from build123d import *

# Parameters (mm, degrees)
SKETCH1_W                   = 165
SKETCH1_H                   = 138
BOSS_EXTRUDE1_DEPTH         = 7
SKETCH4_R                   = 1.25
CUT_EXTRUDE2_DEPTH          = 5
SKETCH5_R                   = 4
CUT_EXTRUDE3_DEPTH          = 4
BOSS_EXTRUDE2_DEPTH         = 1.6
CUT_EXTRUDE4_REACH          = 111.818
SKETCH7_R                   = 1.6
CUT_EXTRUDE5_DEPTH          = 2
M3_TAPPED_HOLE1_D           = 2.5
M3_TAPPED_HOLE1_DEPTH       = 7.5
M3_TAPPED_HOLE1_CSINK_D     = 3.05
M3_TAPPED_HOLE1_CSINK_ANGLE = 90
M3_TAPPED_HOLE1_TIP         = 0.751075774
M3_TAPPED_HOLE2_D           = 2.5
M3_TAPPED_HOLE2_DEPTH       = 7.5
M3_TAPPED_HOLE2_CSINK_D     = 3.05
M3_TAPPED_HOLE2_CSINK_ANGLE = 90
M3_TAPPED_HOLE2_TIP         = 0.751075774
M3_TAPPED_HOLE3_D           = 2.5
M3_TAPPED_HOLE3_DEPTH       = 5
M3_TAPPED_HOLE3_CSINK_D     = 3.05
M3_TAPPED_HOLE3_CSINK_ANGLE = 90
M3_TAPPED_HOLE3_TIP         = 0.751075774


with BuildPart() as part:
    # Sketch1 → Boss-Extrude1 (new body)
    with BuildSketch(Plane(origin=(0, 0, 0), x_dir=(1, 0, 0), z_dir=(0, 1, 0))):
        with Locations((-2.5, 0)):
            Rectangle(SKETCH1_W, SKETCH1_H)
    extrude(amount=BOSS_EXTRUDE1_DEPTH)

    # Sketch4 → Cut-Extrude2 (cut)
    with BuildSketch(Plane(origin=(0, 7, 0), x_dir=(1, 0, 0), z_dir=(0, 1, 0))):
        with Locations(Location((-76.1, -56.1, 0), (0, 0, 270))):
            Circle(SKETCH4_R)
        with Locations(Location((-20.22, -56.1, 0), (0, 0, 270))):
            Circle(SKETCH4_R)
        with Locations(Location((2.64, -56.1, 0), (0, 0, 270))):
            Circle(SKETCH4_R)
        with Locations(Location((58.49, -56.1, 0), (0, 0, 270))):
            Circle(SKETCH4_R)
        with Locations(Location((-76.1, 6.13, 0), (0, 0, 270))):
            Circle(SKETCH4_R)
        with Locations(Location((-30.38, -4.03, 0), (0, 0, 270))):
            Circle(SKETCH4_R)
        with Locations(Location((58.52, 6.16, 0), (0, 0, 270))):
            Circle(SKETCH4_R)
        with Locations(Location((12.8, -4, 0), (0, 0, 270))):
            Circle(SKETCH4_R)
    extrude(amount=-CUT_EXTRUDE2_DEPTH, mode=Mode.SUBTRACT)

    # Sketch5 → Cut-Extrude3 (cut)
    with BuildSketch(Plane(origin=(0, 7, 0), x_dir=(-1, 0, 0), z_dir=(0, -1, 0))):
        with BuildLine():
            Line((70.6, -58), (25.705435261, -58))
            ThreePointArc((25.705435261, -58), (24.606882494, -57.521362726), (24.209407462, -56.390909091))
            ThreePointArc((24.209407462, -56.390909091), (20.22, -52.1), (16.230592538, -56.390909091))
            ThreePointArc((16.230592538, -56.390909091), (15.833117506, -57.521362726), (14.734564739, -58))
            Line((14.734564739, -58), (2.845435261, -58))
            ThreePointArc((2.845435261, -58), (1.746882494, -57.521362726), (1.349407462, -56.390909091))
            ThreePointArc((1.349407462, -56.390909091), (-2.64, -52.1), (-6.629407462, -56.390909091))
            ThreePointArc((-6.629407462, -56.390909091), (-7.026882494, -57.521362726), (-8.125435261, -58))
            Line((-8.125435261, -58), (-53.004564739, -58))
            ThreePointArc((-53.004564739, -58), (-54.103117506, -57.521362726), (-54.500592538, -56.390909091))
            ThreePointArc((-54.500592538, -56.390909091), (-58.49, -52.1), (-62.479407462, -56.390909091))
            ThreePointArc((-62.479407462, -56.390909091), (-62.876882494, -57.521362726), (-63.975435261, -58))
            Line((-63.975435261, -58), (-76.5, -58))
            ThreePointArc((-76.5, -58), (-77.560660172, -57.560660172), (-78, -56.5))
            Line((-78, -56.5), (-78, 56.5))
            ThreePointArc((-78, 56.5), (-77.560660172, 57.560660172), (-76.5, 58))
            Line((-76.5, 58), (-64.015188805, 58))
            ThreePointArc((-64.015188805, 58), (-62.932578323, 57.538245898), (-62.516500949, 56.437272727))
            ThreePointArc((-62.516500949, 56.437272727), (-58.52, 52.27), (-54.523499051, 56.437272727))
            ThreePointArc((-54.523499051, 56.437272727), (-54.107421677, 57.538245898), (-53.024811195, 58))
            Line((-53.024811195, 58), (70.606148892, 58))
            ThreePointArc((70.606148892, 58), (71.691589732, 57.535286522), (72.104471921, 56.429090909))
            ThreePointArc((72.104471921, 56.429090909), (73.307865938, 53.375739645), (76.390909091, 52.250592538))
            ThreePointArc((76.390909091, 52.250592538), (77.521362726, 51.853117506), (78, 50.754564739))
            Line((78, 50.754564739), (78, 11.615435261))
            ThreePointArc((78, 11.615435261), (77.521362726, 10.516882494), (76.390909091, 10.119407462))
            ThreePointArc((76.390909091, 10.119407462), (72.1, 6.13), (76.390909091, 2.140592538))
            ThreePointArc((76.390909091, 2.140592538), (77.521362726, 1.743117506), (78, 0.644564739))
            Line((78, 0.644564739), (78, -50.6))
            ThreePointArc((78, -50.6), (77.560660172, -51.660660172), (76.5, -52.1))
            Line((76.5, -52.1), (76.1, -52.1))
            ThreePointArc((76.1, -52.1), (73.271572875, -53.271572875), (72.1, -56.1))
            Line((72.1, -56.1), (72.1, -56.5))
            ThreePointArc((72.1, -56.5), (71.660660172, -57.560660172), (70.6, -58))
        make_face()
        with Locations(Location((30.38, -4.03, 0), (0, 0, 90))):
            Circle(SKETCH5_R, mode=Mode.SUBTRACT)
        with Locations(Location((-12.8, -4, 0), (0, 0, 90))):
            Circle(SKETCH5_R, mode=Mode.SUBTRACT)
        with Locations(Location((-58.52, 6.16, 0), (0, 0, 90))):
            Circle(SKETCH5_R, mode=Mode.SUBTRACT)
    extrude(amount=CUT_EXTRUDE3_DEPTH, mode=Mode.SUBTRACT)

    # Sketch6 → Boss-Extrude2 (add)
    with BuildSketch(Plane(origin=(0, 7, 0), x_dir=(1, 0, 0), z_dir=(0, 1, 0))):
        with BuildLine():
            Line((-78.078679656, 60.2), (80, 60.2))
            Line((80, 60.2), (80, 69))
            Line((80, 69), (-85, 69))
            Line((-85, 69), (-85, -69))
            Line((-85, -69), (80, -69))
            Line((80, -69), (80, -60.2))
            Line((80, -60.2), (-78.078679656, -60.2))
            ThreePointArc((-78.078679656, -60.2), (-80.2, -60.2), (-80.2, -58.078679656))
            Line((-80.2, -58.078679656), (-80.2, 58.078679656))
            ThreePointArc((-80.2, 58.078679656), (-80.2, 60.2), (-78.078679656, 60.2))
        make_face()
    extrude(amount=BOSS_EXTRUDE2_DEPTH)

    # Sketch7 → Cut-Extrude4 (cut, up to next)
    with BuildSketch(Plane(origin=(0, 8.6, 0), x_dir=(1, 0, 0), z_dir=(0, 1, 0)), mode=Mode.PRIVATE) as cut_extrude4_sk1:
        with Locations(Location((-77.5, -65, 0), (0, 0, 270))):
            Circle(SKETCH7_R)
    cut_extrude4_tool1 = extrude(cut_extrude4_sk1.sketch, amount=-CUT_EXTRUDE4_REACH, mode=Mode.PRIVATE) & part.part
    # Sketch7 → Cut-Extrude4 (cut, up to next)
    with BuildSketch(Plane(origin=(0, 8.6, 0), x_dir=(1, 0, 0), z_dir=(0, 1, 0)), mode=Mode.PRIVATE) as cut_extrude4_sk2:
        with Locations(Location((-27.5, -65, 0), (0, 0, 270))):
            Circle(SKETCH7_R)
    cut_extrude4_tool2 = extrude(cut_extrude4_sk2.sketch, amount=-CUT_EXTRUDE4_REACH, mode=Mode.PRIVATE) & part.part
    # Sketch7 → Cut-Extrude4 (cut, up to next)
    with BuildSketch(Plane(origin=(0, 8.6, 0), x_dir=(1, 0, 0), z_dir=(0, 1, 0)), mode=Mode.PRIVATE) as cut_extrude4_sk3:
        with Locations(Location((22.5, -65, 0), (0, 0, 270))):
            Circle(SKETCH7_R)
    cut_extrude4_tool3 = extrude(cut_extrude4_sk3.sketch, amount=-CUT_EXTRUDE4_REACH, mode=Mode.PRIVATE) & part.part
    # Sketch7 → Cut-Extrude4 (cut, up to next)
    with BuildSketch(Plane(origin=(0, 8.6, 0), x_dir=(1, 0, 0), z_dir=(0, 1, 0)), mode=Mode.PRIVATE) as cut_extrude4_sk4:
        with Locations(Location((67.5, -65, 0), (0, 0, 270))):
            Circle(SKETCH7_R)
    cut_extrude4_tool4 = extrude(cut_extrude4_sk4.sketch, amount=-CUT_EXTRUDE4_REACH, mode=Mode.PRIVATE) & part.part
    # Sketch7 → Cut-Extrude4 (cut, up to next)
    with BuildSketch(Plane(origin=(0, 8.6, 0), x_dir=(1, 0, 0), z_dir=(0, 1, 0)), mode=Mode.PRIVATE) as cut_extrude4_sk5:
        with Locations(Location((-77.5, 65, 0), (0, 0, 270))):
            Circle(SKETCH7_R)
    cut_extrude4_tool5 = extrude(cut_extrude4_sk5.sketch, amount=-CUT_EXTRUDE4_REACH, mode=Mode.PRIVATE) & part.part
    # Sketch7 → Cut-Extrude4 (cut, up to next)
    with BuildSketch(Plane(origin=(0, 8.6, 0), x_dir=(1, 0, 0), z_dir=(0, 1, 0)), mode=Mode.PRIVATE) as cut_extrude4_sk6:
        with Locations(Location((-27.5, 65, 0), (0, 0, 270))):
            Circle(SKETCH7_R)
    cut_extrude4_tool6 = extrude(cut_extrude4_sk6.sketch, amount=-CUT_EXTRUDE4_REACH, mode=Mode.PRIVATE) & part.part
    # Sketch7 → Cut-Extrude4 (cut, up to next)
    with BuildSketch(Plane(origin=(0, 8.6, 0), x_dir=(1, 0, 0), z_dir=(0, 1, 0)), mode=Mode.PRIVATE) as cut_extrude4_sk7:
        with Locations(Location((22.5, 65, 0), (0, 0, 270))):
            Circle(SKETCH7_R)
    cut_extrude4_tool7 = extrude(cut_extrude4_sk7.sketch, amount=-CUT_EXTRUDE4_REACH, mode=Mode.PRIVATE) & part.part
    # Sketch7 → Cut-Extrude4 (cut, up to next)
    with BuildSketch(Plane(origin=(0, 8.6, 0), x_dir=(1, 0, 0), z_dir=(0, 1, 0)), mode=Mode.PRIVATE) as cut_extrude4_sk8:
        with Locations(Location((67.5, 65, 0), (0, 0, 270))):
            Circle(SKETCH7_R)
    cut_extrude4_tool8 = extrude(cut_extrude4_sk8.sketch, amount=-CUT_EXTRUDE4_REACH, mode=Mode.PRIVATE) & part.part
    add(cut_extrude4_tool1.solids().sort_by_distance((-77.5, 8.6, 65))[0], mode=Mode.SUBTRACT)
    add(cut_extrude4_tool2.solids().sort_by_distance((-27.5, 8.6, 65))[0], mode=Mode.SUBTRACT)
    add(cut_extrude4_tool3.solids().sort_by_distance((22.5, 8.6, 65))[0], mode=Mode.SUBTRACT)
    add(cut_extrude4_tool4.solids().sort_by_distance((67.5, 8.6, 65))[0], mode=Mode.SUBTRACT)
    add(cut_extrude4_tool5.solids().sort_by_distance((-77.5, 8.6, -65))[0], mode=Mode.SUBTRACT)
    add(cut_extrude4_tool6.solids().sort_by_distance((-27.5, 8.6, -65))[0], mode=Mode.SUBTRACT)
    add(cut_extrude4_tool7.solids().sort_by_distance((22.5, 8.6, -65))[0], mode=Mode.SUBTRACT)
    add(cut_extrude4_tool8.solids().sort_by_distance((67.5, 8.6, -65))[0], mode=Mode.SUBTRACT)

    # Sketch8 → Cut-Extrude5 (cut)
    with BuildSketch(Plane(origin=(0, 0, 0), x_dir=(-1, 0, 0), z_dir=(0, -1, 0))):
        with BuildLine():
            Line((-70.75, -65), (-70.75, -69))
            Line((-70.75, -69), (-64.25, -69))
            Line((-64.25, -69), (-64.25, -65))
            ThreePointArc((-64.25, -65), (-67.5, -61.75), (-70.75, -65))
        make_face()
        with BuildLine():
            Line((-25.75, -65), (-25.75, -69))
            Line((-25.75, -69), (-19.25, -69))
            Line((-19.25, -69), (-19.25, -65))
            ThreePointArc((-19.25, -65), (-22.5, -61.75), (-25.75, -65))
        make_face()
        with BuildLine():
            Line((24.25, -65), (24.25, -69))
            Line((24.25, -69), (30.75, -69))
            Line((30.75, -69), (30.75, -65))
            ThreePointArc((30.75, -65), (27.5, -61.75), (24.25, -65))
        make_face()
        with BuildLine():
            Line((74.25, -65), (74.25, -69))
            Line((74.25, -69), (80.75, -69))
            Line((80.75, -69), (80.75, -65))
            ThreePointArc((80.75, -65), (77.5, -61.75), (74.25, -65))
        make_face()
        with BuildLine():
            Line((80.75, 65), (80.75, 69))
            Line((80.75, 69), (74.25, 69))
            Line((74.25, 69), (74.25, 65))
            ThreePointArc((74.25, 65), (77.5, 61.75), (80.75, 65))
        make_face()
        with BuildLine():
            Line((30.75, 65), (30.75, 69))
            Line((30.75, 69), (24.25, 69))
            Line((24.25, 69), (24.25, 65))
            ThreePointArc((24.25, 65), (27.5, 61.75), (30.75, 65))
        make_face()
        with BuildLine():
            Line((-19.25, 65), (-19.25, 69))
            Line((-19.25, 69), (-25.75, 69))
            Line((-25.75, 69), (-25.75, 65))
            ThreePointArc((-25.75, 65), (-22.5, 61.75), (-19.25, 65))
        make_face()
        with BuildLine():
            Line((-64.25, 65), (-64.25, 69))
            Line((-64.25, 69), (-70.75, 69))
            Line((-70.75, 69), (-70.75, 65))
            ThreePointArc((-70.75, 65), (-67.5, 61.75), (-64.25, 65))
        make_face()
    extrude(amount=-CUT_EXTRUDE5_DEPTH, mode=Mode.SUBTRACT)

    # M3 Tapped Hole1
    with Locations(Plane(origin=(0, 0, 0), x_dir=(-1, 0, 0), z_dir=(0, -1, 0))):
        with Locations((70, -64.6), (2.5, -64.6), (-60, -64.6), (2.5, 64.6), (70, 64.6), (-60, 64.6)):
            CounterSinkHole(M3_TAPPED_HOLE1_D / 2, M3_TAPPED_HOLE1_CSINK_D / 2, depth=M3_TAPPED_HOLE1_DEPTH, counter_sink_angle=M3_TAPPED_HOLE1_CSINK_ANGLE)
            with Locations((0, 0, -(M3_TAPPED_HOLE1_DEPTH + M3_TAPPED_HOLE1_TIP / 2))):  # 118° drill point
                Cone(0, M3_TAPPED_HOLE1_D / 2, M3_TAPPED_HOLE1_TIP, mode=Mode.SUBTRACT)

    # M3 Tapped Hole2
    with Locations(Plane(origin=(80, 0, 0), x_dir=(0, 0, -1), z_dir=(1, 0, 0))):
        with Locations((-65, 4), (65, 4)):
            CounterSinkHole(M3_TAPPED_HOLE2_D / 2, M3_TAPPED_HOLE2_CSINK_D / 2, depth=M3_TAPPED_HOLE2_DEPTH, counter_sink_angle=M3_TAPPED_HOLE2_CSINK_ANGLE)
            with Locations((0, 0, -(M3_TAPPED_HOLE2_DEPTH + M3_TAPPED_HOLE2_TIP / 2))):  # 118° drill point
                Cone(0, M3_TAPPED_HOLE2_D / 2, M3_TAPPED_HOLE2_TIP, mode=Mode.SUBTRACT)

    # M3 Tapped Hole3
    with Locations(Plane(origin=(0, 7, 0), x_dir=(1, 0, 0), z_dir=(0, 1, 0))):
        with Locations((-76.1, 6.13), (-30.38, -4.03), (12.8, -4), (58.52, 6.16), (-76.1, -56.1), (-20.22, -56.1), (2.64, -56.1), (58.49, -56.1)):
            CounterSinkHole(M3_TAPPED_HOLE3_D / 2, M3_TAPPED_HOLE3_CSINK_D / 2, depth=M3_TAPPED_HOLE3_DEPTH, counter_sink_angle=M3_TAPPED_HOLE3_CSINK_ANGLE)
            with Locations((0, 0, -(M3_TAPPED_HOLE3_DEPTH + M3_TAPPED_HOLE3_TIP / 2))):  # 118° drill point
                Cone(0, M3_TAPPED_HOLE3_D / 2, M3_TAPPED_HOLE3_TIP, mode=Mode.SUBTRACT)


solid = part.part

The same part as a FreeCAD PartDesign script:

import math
import FreeCAD as App
import Part
import Sketcher

V = App.Vector
Q = App.Units.Quantity


def add_polygon(sketch, points):
    """Adds a closed chain of lines whose ends are joined by coincident constraints."""
    first, n = sketch.GeometryCount, len(points)
    for a, b in zip(points, points[1:] + points[:1]):
        sketch.addGeometry(Part.LineSegment(App.Vector(*a, 0), App.Vector(*b, 0)), False)
    for i in range(n):
        sketch.addConstraint(Sketcher.Constraint("Coincident", first + i, 2, first + (i + 1) % n, 1))

doc = App.newDocument("Part")
body = doc.addObject("PartDesign::Body", "Body")

# Sketch on XZ plane
sketch1 = body.newObject("Sketcher::SketchObject", "Sketch")
sketch1.AttachmentSupport = (doc.getObject("XZ_Plane"), [""])
sketch1.MapMode = "FlatFace"
add_polygon(sketch1, [(-85, -69), (-85, 69), (80, 69), (80, -69)])  # lines 0-3
sketch1.addConstraint(Sketcher.Constraint("Vertical", 0))
sketch1.addConstraint(Sketcher.Constraint("Horizontal", 1))
sketch1.addConstraint(Sketcher.Constraint("Vertical", 2))
sketch1.addConstraint(Sketcher.Constraint("Horizontal", 3))
sketch1.addConstraint(Sketcher.Constraint("DistanceX", 1, 1, 1, 2, Q("165 mm")))
sketch1.addConstraint(Sketcher.Constraint("DistanceY", 0, 1, 0, 2, Q("138 mm")))
sketch1.addConstraint(Sketcher.Constraint("DistanceX", 0, 2, -1, 1, Q("85 mm")))
sketch1.addConstraint(Sketcher.Constraint("DistanceY", -1, 1, 0, 2, Q("69 mm")))
pad1 = body.newObject("PartDesign::Pad", "Pad")
pad1.Profile = sketch1
pad1.Length = 7
pad1.Reversed = True

# Sketch on XZ plane
sketch2 = body.newObject("Sketcher::SketchObject", "Sketch001")
sketch2.AttachmentSupport = (doc.getObject("XZ_Plane"), [""])
sketch2.MapMode = "FlatFace"
sketch2.AttachmentOffset = App.Placement(V(0, 0, -7), App.Rotation())
sketch2.addGeometry(Part.Circle(V(-76.1, 56.1, 0), V(0, 0, 1), 1.2), False)
sketch2.addGeometry(Part.Circle(V(-20.2, 56.1, 0), V(0, 0, 1), 1.2), False)
sketch2.addGeometry(Part.Circle(V(2.6, 56.1, 0), V(0, 0, 1), 1.2), False)
sketch2.addGeometry(Part.Circle(V(58.5, 56.1, 0), V(0, 0, 1), 1.2), False)
sketch2.addGeometry(Part.Circle(V(-76.1, -6.1, 0), V(0, 0, 1), 1.2), False)
sketch2.addGeometry(Part.Circle(V(-30.4, 4, 0), V(0, 0, 1), 1.2), False)
sketch2.addGeometry(Part.Circle(V(58.5, -6.2, 0), V(0, 0, 1), 1.2), False)
sketch2.addGeometry(Part.Circle(V(12.8, 4, 0), V(0, 0, 1), 1.2), False)
sketch2.addConstraint(Sketcher.Constraint("Equal", 0, 1))
sketch2.addConstraint(Sketcher.Constraint("Equal", 1, 2))
sketch2.addConstraint(Sketcher.Constraint("Equal", 2, 3))
sketch2.addConstraint(Sketcher.Constraint("Equal", 3, 4))
sketch2.addConstraint(Sketcher.Constraint("Equal", 4, 5))
sketch2.addConstraint(Sketcher.Constraint("Equal", 5, 6))
sketch2.addConstraint(Sketcher.Constraint("Equal", 6, 7))
sketch2.addConstraint(Sketcher.Constraint("Horizontal", 0, 3, 1, 3))
sketch2.addConstraint(Sketcher.Constraint("Horizontal", 1, 3, 2, 3))
sketch2.addConstraint(Sketcher.Constraint("Horizontal", 2, 3, 3, 3))
sketch2.addConstraint(Sketcher.Constraint("Vertical", 0, 3, 4, 3))
sketch2.addConstraint(Sketcher.Constraint("Diameter", 0, Q("2.5 mm")))
sketch2.addConstraint(Sketcher.Constraint("DistanceY", -1, 1, 7, 3, Q("4 mm")))
sketch2.addConstraint(Sketcher.Constraint("DistanceX", 0, 3, -1, 1, Q("76.1 mm")))
sketch2.addConstraint(Sketcher.Constraint("DistanceY", -1, 1, 0, 3, Q("56.1 mm")))
sketch2.addConstraint(Sketcher.Constraint("DistanceX", -1, 1, 7, 3, Q("12.8 mm")))
sketch2.addConstraint(Sketcher.Constraint("DistanceX", 5, 3, 6, 3, Q("88.9 mm")))
sketch2.addConstraint(Sketcher.Constraint("DistanceX", 1, 3, -1, 1, Q("20.22 mm")))
sketch2.addConstraint(Sketcher.Constraint("DistanceX", -1, 1, 2, 3, Q("2.64 mm")))
sketch2.addConstraint(Sketcher.Constraint("DistanceX", -1, 1, 3, 3, Q("58.49 mm")))
sketch2.addConstraint(Sketcher.Constraint("DistanceY", 4, 3, -1, 1, Q("6.13 mm")))
sketch2.addConstraint(Sketcher.Constraint("DistanceX", 5, 3, -1, 1, Q("30.38 mm")))
sketch2.addConstraint(Sketcher.Constraint("DistanceY", -1, 1, 5, 3, Q("4.03 mm")))
sketch2.addConstraint(Sketcher.Constraint("DistanceY", 6, 3, -1, 1, Q("6.16 mm")))
pocket1 = body.newObject("PartDesign::Pocket", "Pocket")
pocket1.Profile = sketch2
pocket1.Length = 5
pocket1.Reversed = True

# Sketch on XZ plane
sketch3 = body.newObject("Sketcher::SketchObject", "Sketch002")
sketch3.AttachmentSupport = (doc.getObject("XZ_Plane"), [""])
sketch3.MapMode = "FlatFace"
sketch3.AttachmentOffset = App.Placement(V(0, 0, -7), App.Rotation())
sketch3.addGeometry(Part.LineSegment(V(-25.71, 58, 0), V(-70.6, 58, 0)), False)
sketch3.addGeometry(Part.ArcOfCircle(Part.Circle(V(-70.6, 56.5, 0), V(0, 0, 1), 1.5), math.radians(90), math.radians(180)), False)
sketch3.addGeometry(Part.LineSegment(V(-72.1, 56.5, 0), V(-72.1, 56.1, 0)), False)
sketch3.addGeometry(Part.ArcOfCircle(Part.Circle(V(-76.1, 56.1, 0), V(0, 0, 1), 4), math.radians(-90), math.radians(0)), False)
sketch3.addGeometry(Part.LineSegment(V(-76.1, 52.1, 0), V(-76.5, 52.1, 0)), False)
sketch3.addGeometry(Part.ArcOfCircle(Part.Circle(V(-76.5, 50.6, 0), V(0, 0, 1), 1.5), math.radians(90), math.radians(180)), False)
sketch3.addGeometry(Part.LineSegment(V(-78, 50.6, 0), V(-78, -0.64, 0)), False)
sketch3.addGeometry(Part.ArcOfCircle(Part.Circle(V(-76.5, -0.64, 0), V(0, 0, 1), 1.5), math.radians(180), math.radians(274)), False)
sketch3.addGeometry(Part.ArcOfCircle(Part.Circle(V(-76.1, -6.13, 0), V(0, 0, 1), 4), math.radians(-94), math.radians(94)), False)
sketch3.addGeometry(Part.ArcOfCircle(Part.Circle(V(-76.5, -11.62, 0), V(0, 0, 1), 1.5), math.radians(86), math.radians(180)), False)
sketch3.addGeometry(Part.LineSegment(V(-78, -11.62, 0), V(-78, -50.75, 0)), False)
sketch3.addGeometry(Part.ArcOfCircle(Part.Circle(V(-76.5, -50.75, 0), V(0, 0, 1), 1.5), math.radians(180), math.radians(274)), False)
sketch3.addGeometry(Part.ArcOfCircle(Part.Circle(V(-76.1, -56.24, 0), V(0, 0, 1), 4), math.radians(-3), math.radians(94)), False)
sketch3.addGeometry(Part.ArcOfCircle(Part.Circle(V(-70.61, -56.5, 0), V(0, 0, 1), 1.5), math.radians(177), math.radians(270)), False)
sketch3.addGeometry(Part.LineSegment(V(-70.61, -58, 0), V(53.02, -58, 0)), False)
sketch3.addGeometry(Part.ArcOfCircle(Part.Circle(V(53.02, -56.5, 0), V(0, 0, 1), 1.5), math.radians(-90), math.radians(2)), False)
sketch3.addGeometry(Part.ArcOfCircle(Part.Circle(V(58.52, -56.27, 0), V(0, 0, 1), 4), math.radians(-2), math.radians(182)), False)
sketch3.addGeometry(Part.ArcOfCircle(Part.Circle(V(64.02, -56.5, 0), V(0, 0, 1), 1.5), math.radians(178), math.radians(270)), False)
sketch3.addGeometry(Part.LineSegment(V(64.02, -58, 0), V(76.5, -58, 0)), False)
sketch3.addGeometry(Part.ArcOfCircle(Part.Circle(V(76.5, -56.5, 0), V(0, 0, 1), 1.5), math.radians(-90), math.radians(0)), False)
sketch3.addGeometry(Part.LineSegment(V(78, -56.5, 0), V(78, 56.5, 0)), False)
sketch3.addGeometry(Part.ArcOfCircle(Part.Circle(V(76.5, 56.5, 0), V(0, 0, 1), 1.5), math.radians(0), math.radians(90)), False)
sketch3.addGeometry(Part.LineSegment(V(76.5, 58, 0), V(63.98, 58, 0)), False)
sketch3.addGeometry(Part.ArcOfCircle(Part.Circle(V(63.98, 56.5, 0), V(0, 0, 1), 1.5), math.radians(90), math.radians(184)), False)
sketch3.addGeometry(Part.ArcOfCircle(Part.Circle(V(58.49, 56.1, 0), V(0, 0, 1), 4), math.radians(176), math.radians(364)), False)
sketch3.addGeometry(Part.ArcOfCircle(Part.Circle(V(53, 56.5, 0), V(0, 0, 1), 1.5), math.radians(-4), math.radians(90)), False)
sketch3.addGeometry(Part.LineSegment(V(53, 58, 0), V(8.13, 58, 0)), False)
sketch3.addGeometry(Part.ArcOfCircle(Part.Circle(V(8.13, 56.5, 0), V(0, 0, 1), 1.5), math.radians(90), math.radians(184)), False)
sketch3.addGeometry(Part.ArcOfCircle(Part.Circle(V(2.64, 56.1, 0), V(0, 0, 1), 4), math.radians(176), math.radians(364)), False)
sketch3.addGeometry(Part.ArcOfCircle(Part.Circle(V(-2.85, 56.5, 0), V(0, 0, 1), 1.5), math.radians(-4), math.radians(90)), False)
sketch3.addGeometry(Part.LineSegment(V(-2.85, 58, 0), V(-14.73, 58, 0)), False)
sketch3.addGeometry(Part.ArcOfCircle(Part.Circle(V(-14.73, 56.5, 0), V(0, 0, 1), 1.5), math.radians(90), math.radians(184)), False)
sketch3.addGeometry(Part.ArcOfCircle(Part.Circle(V(-20.22, 56.1, 0), V(0, 0, 1), 4), math.radians(176), math.radians(364)), False)
sketch3.addGeometry(Part.ArcOfCircle(Part.Circle(V(-25.71, 56.5, 0), V(0, 0, 1), 1.5), math.radians(-4), math.radians(90)), False)
sketch3.addGeometry(Part.Circle(V(-30.38, 4.03, 0), V(0, 0, 1), 4), False)
sketch3.addGeometry(Part.Circle(V(12.8, 4, 0), V(0, 0, 1), 4), False)
sketch3.addGeometry(Part.Circle(V(58.52, -6.16, 0), V(0, 0, 1), 4), False)
sketch3.addConstraint(Sketcher.Constraint("Tangent", 0, 2, 1, 1))
sketch3.addConstraint(Sketcher.Constraint("Tangent", 1, 2, 2, 1))
sketch3.addConstraint(Sketcher.Constraint("Tangent", 2, 2, 3, 2))
sketch3.addConstraint(Sketcher.Constraint("Tangent", 3, 1, 4, 1))
sketch3.addConstraint(Sketcher.Constraint("Tangent", 4, 2, 5, 1))
sketch3.addConstraint(Sketcher.Constraint("Tangent", 5, 2, 6, 1))
sketch3.addConstraint(Sketcher.Constraint("Tangent", 6, 2, 7, 1))
sketch3.addConstraint(Sketcher.Constraint("Tangent", 7, 2, 8, 2))
sketch3.addConstraint(Sketcher.Constraint("Tangent", 8, 1, 9, 1))
sketch3.addConstraint(Sketcher.Constraint("Tangent", 9, 2, 10, 1))
sketch3.addConstraint(Sketcher.Constraint("Tangent", 10, 2, 11, 1))
sketch3.addConstraint(Sketcher.Constraint("Tangent", 11, 2, 12, 2))
sketch3.addConstraint(Sketcher.Constraint("Tangent", 12, 1, 13, 1))
sketch3.addConstraint(Sketcher.Constraint("Tangent", 13, 2, 14, 1))
sketch3.addConstraint(Sketcher.Constraint("Tangent", 14, 2, 15, 1))
sketch3.addConstraint(Sketcher.Constraint("Tangent", 15, 2, 16, 2))
sketch3.addConstraint(Sketcher.Constraint("Tangent", 16, 1, 17, 1))
sketch3.addConstraint(Sketcher.Constraint("Tangent", 17, 2, 18, 1))
sketch3.addConstraint(Sketcher.Constraint("Tangent", 18, 2, 19, 1))
sketch3.addConstraint(Sketcher.Constraint("Tangent", 19, 2, 20, 1))
sketch3.addConstraint(Sketcher.Constraint("Tangent", 20, 2, 21, 1))
sketch3.addConstraint(Sketcher.Constraint("Tangent", 21, 2, 22, 1))
sketch3.addConstraint(Sketcher.Constraint("Tangent", 22, 2, 23, 1))
sketch3.addConstraint(Sketcher.Constraint("Tangent", 23, 2, 24, 2))
sketch3.addConstraint(Sketcher.Constraint("Tangent", 24, 1, 25, 1))
sketch3.addConstraint(Sketcher.Constraint("Tangent", 25, 2, 26, 1))
sketch3.addConstraint(Sketcher.Constraint("Tangent", 26, 2, 27, 1))
sketch3.addConstraint(Sketcher.Constraint("Tangent", 27, 2, 28, 2))
sketch3.addConstraint(Sketcher.Constraint("Tangent", 28, 1, 29, 1))
sketch3.addConstraint(Sketcher.Constraint("Tangent", 29, 2, 30, 1))
sketch3.addConstraint(Sketcher.Constraint("Tangent", 30, 2, 31, 1))
sketch3.addConstraint(Sketcher.Constraint("Tangent", 31, 2, 32, 2))
sketch3.addConstraint(Sketcher.Constraint("Tangent", 32, 1, 33, 1))
sketch3.addConstraint(Sketcher.Constraint("Tangent", 33, 2, 0, 1))
sketch3.addConstraint(Sketcher.Constraint("Horizontal", 0))
sketch3.addConstraint(Sketcher.Constraint("Vertical", 2))
sketch3.addConstraint(Sketcher.Constraint("Horizontal", 4))
sketch3.addConstraint(Sketcher.Constraint("Vertical", 6))
sketch3.addConstraint(Sketcher.Constraint("Vertical", 10))
sketch3.addConstraint(Sketcher.Constraint("Horizontal", 14))
sketch3.addConstraint(Sketcher.Constraint("Horizontal", 18))
sketch3.addConstraint(Sketcher.Constraint("Vertical", 20))
sketch3.addConstraint(Sketcher.Constraint("Horizontal", 22))
sketch3.addConstraint(Sketcher.Constraint("Horizontal", 26))
sketch3.addConstraint(Sketcher.Constraint("Horizontal", 30))
sketch3.addConstraint(Sketcher.Constraint("Equal", 1, 5))
sketch3.addConstraint(Sketcher.Constraint("Equal", 5, 7))
sketch3.addConstraint(Sketcher.Constraint("Equal", 3, 8))
sketch3.addConstraint(Sketcher.Constraint("Equal", 7, 9))
sketch3.addConstraint(Sketcher.Constraint("Equal", 9, 11))
sketch3.addConstraint(Sketcher.Constraint("Equal", 8, 12))
sketch3.addConstraint(Sketcher.Constraint("Equal", 11, 13))
sketch3.addConstraint(Sketcher.Constraint("Equal", 13, 15))
sketch3.addConstraint(Sketcher.Constraint("Equal", 12, 16))
sketch3.addConstraint(Sketcher.Constraint("Equal", 15, 17))
sketch3.addConstraint(Sketcher.Constraint("Equal", 17, 19))
sketch3.addConstraint(Sketcher.Constraint("Equal", 19, 21))
sketch3.addConstraint(Sketcher.Constraint("Equal", 21, 23))
sketch3.addConstraint(Sketcher.Constraint("Equal", 16, 24))
sketch3.addConstraint(Sketcher.Constraint("Equal", 23, 25))
sketch3.addConstraint(Sketcher.Constraint("Equal", 25, 27))
sketch3.addConstraint(Sketcher.Constraint("Equal", 24, 28))
sketch3.addConstraint(Sketcher.Constraint("Equal", 27, 29))
sketch3.addConstraint(Sketcher.Constraint("Equal", 29, 31))
sketch3.addConstraint(Sketcher.Constraint("Equal", 28, 32))
sketch3.addConstraint(Sketcher.Constraint("Equal", 31, 33))
sketch3.addConstraint(Sketcher.Constraint("Equal", 32, 34))
sketch3.addConstraint(Sketcher.Constraint("Equal", 34, 35))
sketch3.addConstraint(Sketcher.Constraint("Equal", 35, 36))
sketch3.addConstraint(Sketcher.Constraint("Horizontal", 15, 3, 17, 3))
sketch3.addConstraint(Sketcher.Constraint("Horizontal", 1, 3, 21, 3))
sketch3.addConstraint(Sketcher.Constraint("Horizontal", 3, 3, 24, 3))
sketch3.addConstraint(Sketcher.Constraint("Horizontal", 23, 3, 25, 3))
sketch3.addConstraint(Sketcher.Constraint("Horizontal", 24, 3, 28, 3))
sketch3.addConstraint(Sketcher.Constraint("Horizontal", 27, 3, 29, 3))
sketch3.addConstraint(Sketcher.Constraint("Horizontal", 28, 3, 32, 3))
sketch3.addConstraint(Sketcher.Constraint("Vertical", 3, 3, 8, 3))
sketch3.addConstraint(Sketcher.Constraint("Vertical", 7, 3, 9, 3))
sketch3.addConstraint(Sketcher.Constraint("Vertical", 8, 3, 12, 3))
sketch3.addConstraint(Sketcher.Constraint("Vertical", 16, 3, 36, 3))
sketch3.addConstraint(Sketcher.Constraint("Equal", 4, 2))
sketch3.addConstraint(Sketcher.Constraint("Diameter", 34, Q("8 mm")))
sketch3.addConstraint(Sketcher.Constraint("Radius", 1, Q("1.5 mm")))
sketch3.addConstraint(Sketcher.Constraint("DistanceY", 20, 1, 20, 2, Q("113 mm")))
sketch3.addConstraint(Sketcher.Constraint("DistanceX", 4, 2, 4, 1, Q("0.4 mm")))
sketch3.addConstraint(Sketcher.Constraint("DistanceY", -1, 1, 35, 3, Q("4 mm")))
sketch3.addConstraint(Sketcher.Constraint("DistanceY", -1, 1, 0, 2, Q("58 mm")))
sketch3.addConstraint(Sketcher.Constraint("DistanceX", 5, 2, -1, 1, Q("78 mm")))
sketch3.addConstraint(Sketcher.Constraint("DistanceX", -1, 1, 19, 2, Q("78 mm")))
sketch3.addConstraint(Sketcher.Constraint("DistanceX", -1, 1, 35, 3, Q("12.8 mm")))
sketch3.addConstraint(Sketcher.Constraint("DistanceY", 8, 3, -1, 1, Q("6.13 mm")))
sketch3.addConstraint(Sketcher.Constraint("DistanceY", 12, 3, -1, 1, Q("56.24 mm")))
sketch3.addConstraint(Sketcher.Constraint("DistanceX", -1, 1, 16, 3, Q("58.52 mm")))
sketch3.addConstraint(Sketcher.Constraint("DistanceY", 16, 3, -1, 1, Q("56.27 mm")))
sketch3.addConstraint(Sketcher.Constraint("DistanceX", -1, 1, 24, 3, Q("58.49 mm")))
sketch3.addConstraint(Sketcher.Constraint("DistanceX", -1, 1, 28, 3, Q("2.64 mm")))
sketch3.addConstraint(Sketcher.Constraint("DistanceX", 32, 3, -1, 1, Q("20.22 mm")))
sketch3.addConstraint(Sketcher.Constraint("DistanceX", 34, 3, -1, 1, Q("30.38 mm")))
sketch3.addConstraint(Sketcher.Constraint("DistanceY", -1, 1, 34, 3, Q("4.03 mm")))
sketch3.addConstraint(Sketcher.Constraint("DistanceY", 36, 3, -1, 1, Q("6.16 mm")))
pocket2 = body.newObject("PartDesign::Pocket", "Pocket001")
pocket2.Profile = sketch3
pocket2.Length = 4
pocket2.Reversed = True

# Sketch on XZ plane
sketch4 = body.newObject("Sketcher::SketchObject", "Sketch003")
sketch4.AttachmentSupport = (doc.getObject("XZ_Plane"), [""])
sketch4.MapMode = "FlatFace"
sketch4.AttachmentOffset = App.Placement(V(0, 0, -7), App.Rotation())
sketch4.addGeometry(Part.LineSegment(V(-78.1, -60.2, 0), V(80, -60.2, 0)), False)
sketch4.addGeometry(Part.LineSegment(V(80, -60.2, 0), V(80, -69, 0)), False)
sketch4.addGeometry(Part.LineSegment(V(80, -69, 0), V(-85, -69, 0)), False)
sketch4.addGeometry(Part.LineSegment(V(-85, -69, 0), V(-85, 69, 0)), False)
sketch4.addGeometry(Part.LineSegment(V(-85, 69, 0), V(80, 69, 0)), False)
sketch4.addGeometry(Part.LineSegment(V(80, 69, 0), V(80, 60.2, 0)), False)
sketch4.addGeometry(Part.LineSegment(V(80, 60.2, 0), V(-78.1, 60.2, 0)), False)
sketch4.addGeometry(Part.ArcOfCircle(Part.Circle(V(-79.1, 59.1, 0), V(0, 0, 1), 1.5), math.radians(45), math.radians(225)), False)
sketch4.addGeometry(Part.LineSegment(V(-80.2, 58.1, 0), V(-80.2, -58.1, 0)), False)
sketch4.addGeometry(Part.ArcOfCircle(Part.Circle(V(-79.1, -59.1, 0), V(0, 0, 1), 1.5), math.radians(135), math.radians(315)), False)
sketch4.addConstraint(Sketcher.Constraint("Coincident", 0, 2, 1, 1))
sketch4.addConstraint(Sketcher.Constraint("Coincident", 1, 2, 2, 1))
sketch4.addConstraint(Sketcher.Constraint("Coincident", 2, 2, 3, 1))
sketch4.addConstraint(Sketcher.Constraint("Coincident", 3, 2, 4, 1))
sketch4.addConstraint(Sketcher.Constraint("Coincident", 4, 2, 5, 1))
sketch4.addConstraint(Sketcher.Constraint("Coincident", 5, 2, 6, 1))
sketch4.addConstraint(Sketcher.Constraint("Coincident", 6, 2, 7, 1))
sketch4.addConstraint(Sketcher.Constraint("Coincident", 7, 2, 8, 1))
sketch4.addConstraint(Sketcher.Constraint("Coincident", 8, 2, 9, 1))
sketch4.addConstraint(Sketcher.Constraint("Coincident", 9, 2, 0, 1))
sketch4.addConstraint(Sketcher.Constraint("Horizontal", 0))
sketch4.addConstraint(Sketcher.Constraint("Vertical", 1))
sketch4.addConstraint(Sketcher.Constraint("Horizontal", 2))
sketch4.addConstraint(Sketcher.Constraint("Vertical", 3))
sketch4.addConstraint(Sketcher.Constraint("Horizontal", 4))
sketch4.addConstraint(Sketcher.Constraint("Vertical", 5))
sketch4.addConstraint(Sketcher.Constraint("Horizontal", 6))
sketch4.addConstraint(Sketcher.Constraint("Vertical", 8))
sketch4.addConstraint(Sketcher.Constraint("Equal", 7, 9))
sketch4.addConstraint(Sketcher.Constraint("Symmetric", 7, 3, 9, 3, -1))
sketch4.addConstraint(Sketcher.Constraint("Symmetric", 1, 2, 4, 2, -1))
sketch4.addConstraint(Sketcher.Constraint("Vertical", 6, 2, 9, 2))
sketch4.addConstraint(Sketcher.Constraint("Radius", 7, Q("1.5 mm")))
sketch4.addConstraint(Sketcher.Constraint("DistanceX", 2, 2, 2, 1, Q("165 mm")))
sketch4.addConstraint(Sketcher.Constraint("DistanceY", 3, 1, 3, 2, Q("138 mm")))
sketch4.addConstraint(Sketcher.Constraint("DistanceY", 1, 2, 1, 1, Q("8.8 mm")))
sketch4.addConstraint(Sketcher.Constraint("DistanceX", -1, 1, 0, 2, Q("80 mm")))
sketch4.addConstraint(Sketcher.Constraint("DistanceX", 7, 2, -1, 1, Q("80.2 mm")))
sketch4.addConstraint(Sketcher.Constraint("DistanceX", 0, 1, 0, 2, Q("158.07868 mm")))
sketch4.addConstraint(Sketcher.Constraint("DistanceX", 7, 3, -1, 1, Q("79.13934 mm")))
pad2 = body.newObject("PartDesign::Pad", "Pad001")
pad2.Profile = sketch4
pad2.Length = 1.6
pad2.Reversed = True

# Sketch on XZ plane
sketch5 = body.newObject("Sketcher::SketchObject", "Sketch004")
sketch5.AttachmentSupport = (doc.getObject("XZ_Plane"), [""])
sketch5.MapMode = "FlatFace"
sketch5.AttachmentOffset = App.Placement(V(0, 0, -8.6), App.Rotation())
sketch5.addGeometry(Part.Circle(V(-77.5, 65, 0), V(0, 0, 1), 1.6), False)
sketch5.addConstraint(Sketcher.Constraint("Diameter", 0, Q("3.2 mm")))
sketch5.addConstraint(Sketcher.Constraint("DistanceY", -1, 1, 0, 3, Q("65 mm")))
sketch5.addConstraint(Sketcher.Constraint("DistanceX", 0, 3, -1, 1, Q("77.5 mm")))
pocket3 = body.newObject("PartDesign::Pocket", "Pocket002")
pocket3.Profile = sketch5
pocket3.Type = "UpToFirst"
pocket3.Reversed = True

# Sketch on XZ plane
sketch6 = body.newObject("Sketcher::SketchObject", "Sketch005")
sketch6.AttachmentSupport = (doc.getObject("XZ_Plane"), [""])
sketch6.MapMode = "FlatFace"
sketch6.AttachmentOffset = App.Placement(V(0, 0, -8.6), App.Rotation())
sketch6.addGeometry(Part.Circle(V(-27.5, 65, 0), V(0, 0, 1), 1.6), False)
sketch6.addConstraint(Sketcher.Constraint("Diameter", 0, Q("3.2 mm")))
sketch6.addConstraint(Sketcher.Constraint("DistanceY", -1, 1, 0, 3, Q("65 mm")))
sketch6.addConstraint(Sketcher.Constraint("DistanceX", 0, 3, -1, 1, Q("27.5 mm")))
pocket4 = body.newObject("PartDesign::Pocket", "Pocket003")
pocket4.Profile = sketch6
pocket4.Type = "UpToFirst"
pocket4.Reversed = True

# Sketch on XZ plane
sketch7 = body.newObject("Sketcher::SketchObject", "Sketch006")
sketch7.AttachmentSupport = (doc.getObject("XZ_Plane"), [""])
sketch7.MapMode = "FlatFace"
sketch7.AttachmentOffset = App.Placement(V(0, 0, -8.6), App.Rotation())
sketch7.addGeometry(Part.Circle(V(22.5, 65, 0), V(0, 0, 1), 1.6), False)
sketch7.addConstraint(Sketcher.Constraint("Diameter", 0, Q("3.2 mm")))
sketch7.addConstraint(Sketcher.Constraint("DistanceY", -1, 1, 0, 3, Q("65 mm")))
sketch7.addConstraint(Sketcher.Constraint("DistanceX", -1, 1, 0, 3, Q("22.5 mm")))
pocket5 = body.newObject("PartDesign::Pocket", "Pocket004")
pocket5.Profile = sketch7
pocket5.Type = "UpToFirst"
pocket5.Reversed = True

# Sketch on XZ plane
sketch8 = body.newObject("Sketcher::SketchObject", "Sketch007")
sketch8.AttachmentSupport = (doc.getObject("XZ_Plane"), [""])
sketch8.MapMode = "FlatFace"
sketch8.AttachmentOffset = App.Placement(V(0, 0, -8.6), App.Rotation())
sketch8.addGeometry(Part.Circle(V(67.5, 65, 0), V(0, 0, 1), 1.6), False)
sketch8.addConstraint(Sketcher.Constraint("Diameter", 0, Q("3.2 mm")))
sketch8.addConstraint(Sketcher.Constraint("DistanceY", -1, 1, 0, 3, Q("65 mm")))
sketch8.addConstraint(Sketcher.Constraint("DistanceX", -1, 1, 0, 3, Q("67.5 mm")))
pocket6 = body.newObject("PartDesign::Pocket", "Pocket005")
pocket6.Profile = sketch8
pocket6.Type = "UpToFirst"
pocket6.Reversed = True

# Sketch on XZ plane
sketch9 = body.newObject("Sketcher::SketchObject", "Sketch008")
sketch9.AttachmentSupport = (doc.getObject("XZ_Plane"), [""])
sketch9.MapMode = "FlatFace"
sketch9.AttachmentOffset = App.Placement(V(0, 0, -8.6), App.Rotation())
sketch9.addGeometry(Part.Circle(V(-77.5, -65, 0), V(0, 0, 1), 1.6), False)
sketch9.addConstraint(Sketcher.Constraint("Diameter", 0, Q("3.2 mm")))
sketch9.addConstraint(Sketcher.Constraint("DistanceY", 0, 3, -1, 1, Q("65 mm")))
sketch9.addConstraint(Sketcher.Constraint("DistanceX", 0, 3, -1, 1, Q("77.5 mm")))
pocket7 = body.newObject("PartDesign::Pocket", "Pocket006")
pocket7.Profile = sketch9
pocket7.Type = "UpToFirst"
pocket7.Reversed = True

# Sketch on XZ plane
sketch10 = body.newObject("Sketcher::SketchObject", "Sketch009")
sketch10.AttachmentSupport = (doc.getObject("XZ_Plane"), [""])
sketch10.MapMode = "FlatFace"
sketch10.AttachmentOffset = App.Placement(V(0, 0, -8.6), App.Rotation())
sketch10.addGeometry(Part.Circle(V(-27.5, -65, 0), V(0, 0, 1), 1.6), False)
sketch10.addConstraint(Sketcher.Constraint("Diameter", 0, Q("3.2 mm")))
sketch10.addConstraint(Sketcher.Constraint("DistanceY", 0, 3, -1, 1, Q("65 mm")))
sketch10.addConstraint(Sketcher.Constraint("DistanceX", 0, 3, -1, 1, Q("27.5 mm")))
pocket8 = body.newObject("PartDesign::Pocket", "Pocket007")
pocket8.Profile = sketch10
pocket8.Type = "UpToFirst"
pocket8.Reversed = True

# Sketch on XZ plane
sketch11 = body.newObject("Sketcher::SketchObject", "Sketch010")
sketch11.AttachmentSupport = (doc.getObject("XZ_Plane"), [""])
sketch11.MapMode = "FlatFace"
sketch11.AttachmentOffset = App.Placement(V(0, 0, -8.6), App.Rotation())
sketch11.addGeometry(Part.Circle(V(22.5, -65, 0), V(0, 0, 1), 1.6), False)
sketch11.addConstraint(Sketcher.Constraint("Diameter", 0, Q("3.2 mm")))
sketch11.addConstraint(Sketcher.Constraint("DistanceY", 0, 3, -1, 1, Q("65 mm")))
sketch11.addConstraint(Sketcher.Constraint("DistanceX", -1, 1, 0, 3, Q("22.5 mm")))
pocket9 = body.newObject("PartDesign::Pocket", "Pocket008")
pocket9.Profile = sketch11
pocket9.Type = "UpToFirst"
pocket9.Reversed = True

# Sketch on XZ plane
sketch12 = body.newObject("Sketcher::SketchObject", "Sketch011")
sketch12.AttachmentSupport = (doc.getObject("XZ_Plane"), [""])
sketch12.MapMode = "FlatFace"
sketch12.AttachmentOffset = App.Placement(V(0, 0, -8.6), App.Rotation())
sketch12.addGeometry(Part.Circle(V(67.5, -65, 0), V(0, 0, 1), 1.6), False)
sketch12.addConstraint(Sketcher.Constraint("Diameter", 0, Q("3.2 mm")))
sketch12.addConstraint(Sketcher.Constraint("DistanceY", 0, 3, -1, 1, Q("65 mm")))
sketch12.addConstraint(Sketcher.Constraint("DistanceX", -1, 1, 0, 3, Q("67.5 mm")))
pocket10 = body.newObject("PartDesign::Pocket", "Pocket009")
pocket10.Profile = sketch12
pocket10.Type = "UpToFirst"
pocket10.Reversed = True

# Sketch on XZ plane
sketch13 = body.newObject("Sketcher::SketchObject", "Sketch012")
sketch13.AttachmentSupport = (doc.getObject("XZ_Plane"), [""])
sketch13.MapMode = "FlatFace"
sketch13.addGeometry(Part.LineSegment(V(70.8, 65, 0), V(70.8, 69, 0)), False)
sketch13.addGeometry(Part.LineSegment(V(70.8, 69, 0), V(64.2, 69, 0)), False)
sketch13.addGeometry(Part.LineSegment(V(64.2, 69, 0), V(64.2, 65, 0)), False)
sketch13.addGeometry(Part.ArcOfCircle(Part.Circle(V(67.5, 65, 0), V(0, 0, 1), 3.2), math.radians(180), math.radians(360)), False)
sketch13.addGeometry(Part.LineSegment(V(25.8, 65, 0), V(25.8, 69, 0)), False)
sketch13.addGeometry(Part.LineSegment(V(25.8, 69, 0), V(19.2, 69, 0)), False)
sketch13.addGeometry(Part.LineSegment(V(19.2, 69, 0), V(19.2, 65, 0)), False)
sketch13.addGeometry(Part.ArcOfCircle(Part.Circle(V(22.5, 65, 0), V(0, 0, 1), 3.2), math.radians(180), math.radians(360)), False)
sketch13.addGeometry(Part.LineSegment(V(-24.2, 65, 0), V(-24.2, 69, 0)), False)
sketch13.addGeometry(Part.LineSegment(V(-24.2, 69, 0), V(-30.8, 69, 0)), False)
sketch13.addGeometry(Part.LineSegment(V(-30.8, 69, 0), V(-30.8, 65, 0)), False)
sketch13.addGeometry(Part.ArcOfCircle(Part.Circle(V(-27.5, 65, 0), V(0, 0, 1), 3.2), math.radians(180), math.radians(360)), False)
sketch13.addGeometry(Part.LineSegment(V(-74.2, 65, 0), V(-74.2, 69, 0)), False)
sketch13.addGeometry(Part.LineSegment(V(-74.2, 69, 0), V(-80.8, 69, 0)), False)
sketch13.addGeometry(Part.LineSegment(V(-80.8, 69, 0), V(-80.8, 65, 0)), False)
sketch13.addGeometry(Part.ArcOfCircle(Part.Circle(V(-77.5, 65, 0), V(0, 0, 1), 3.2), math.radians(180), math.radians(360)), False)
sketch13.addGeometry(Part.LineSegment(V(-80.8, -65, 0), V(-80.8, -69, 0)), False)
sketch13.addGeometry(Part.LineSegment(V(-80.8, -69, 0), V(-74.2, -69, 0)), False)
sketch13.addGeometry(Part.LineSegment(V(-74.2, -69, 0), V(-74.2, -65, 0)), False)
sketch13.addGeometry(Part.ArcOfCircle(Part.Circle(V(-77.5, -65, 0), V(0, 0, 1), 3.2), math.radians(0), math.radians(180)), False)
sketch13.addGeometry(Part.LineSegment(V(-30.8, -65, 0), V(-30.8, -69, 0)), False)
sketch13.addGeometry(Part.LineSegment(V(-30.8, -69, 0), V(-24.2, -69, 0)), False)
sketch13.addGeometry(Part.LineSegment(V(-24.2, -69, 0), V(-24.2, -65, 0)), False)
sketch13.addGeometry(Part.ArcOfCircle(Part.Circle(V(-27.5, -65, 0), V(0, 0, 1), 3.2), math.radians(0), math.radians(180)), False)
sketch13.addGeometry(Part.LineSegment(V(19.2, -65, 0), V(19.2, -69, 0)), False)
sketch13.addGeometry(Part.LineSegment(V(19.2, -69, 0), V(25.8, -69, 0)), False)
sketch13.addGeometry(Part.LineSegment(V(25.8, -69, 0), V(25.8, -65, 0)), False)
sketch13.addGeometry(Part.ArcOfCircle(Part.Circle(V(22.5, -65, 0), V(0, 0, 1), 3.2), math.radians(0), math.radians(180)), False)
sketch13.addGeometry(Part.LineSegment(V(64.2, -65, 0), V(64.2, -69, 0)), False)
sketch13.addGeometry(Part.LineSegment(V(64.2, -69, 0), V(70.8, -69, 0)), False)
sketch13.addGeometry(Part.LineSegment(V(70.8, -69, 0), V(70.8, -65, 0)), False)
sketch13.addGeometry(Part.ArcOfCircle(Part.Circle(V(67.5, -65, 0), V(0, 0, 1), 3.2), math.radians(0), math.radians(180)), False)
sketch13.addConstraint(Sketcher.Constraint("Coincident", 0, 2, 1, 1))
sketch13.addConstraint(Sketcher.Constraint("Coincident", 1, 2, 2, 1))
sketch13.addConstraint(Sketcher.Constraint("Tangent", 2, 2, 3, 1))
sketch13.addConstraint(Sketcher.Constraint("Tangent", 3, 2, 0, 1))
sketch13.addConstraint(Sketcher.Constraint("Coincident", 4, 2, 5, 1))
sketch13.addConstraint(Sketcher.Constraint("Coincident", 5, 2, 6, 1))
sketch13.addConstraint(Sketcher.Constraint("Tangent", 6, 2, 7, 1))
sketch13.addConstraint(Sketcher.Constraint("Tangent", 7, 2, 4, 1))
sketch13.addConstraint(Sketcher.Constraint("Coincident", 8, 2, 9, 1))
sketch13.addConstraint(Sketcher.Constraint("Coincident", 9, 2, 10, 1))
sketch13.addConstraint(Sketcher.Constraint("Tangent", 10, 2, 11, 1))
sketch13.addConstraint(Sketcher.Constraint("Tangent", 11, 2, 8, 1))
sketch13.addConstraint(Sketcher.Constraint("Coincident", 12, 2, 13, 1))
sketch13.addConstraint(Sketcher.Constraint("Coincident", 13, 2, 14, 1))
sketch13.addConstraint(Sketcher.Constraint("Tangent", 14, 2, 15, 1))
sketch13.addConstraint(Sketcher.Constraint("Tangent", 15, 2, 12, 1))
sketch13.addConstraint(Sketcher.Constraint("Coincident", 16, 2, 17, 1))
sketch13.addConstraint(Sketcher.Constraint("Coincident", 17, 2, 18, 1))
sketch13.addConstraint(Sketcher.Constraint("Tangent", 18, 2, 19, 1))
sketch13.addConstraint(Sketcher.Constraint("Tangent", 19, 2, 16, 1))
sketch13.addConstraint(Sketcher.Constraint("Coincident", 20, 2, 21, 1))
sketch13.addConstraint(Sketcher.Constraint("Coincident", 21, 2, 22, 1))
sketch13.addConstraint(Sketcher.Constraint("Tangent", 22, 2, 23, 1))
sketch13.addConstraint(Sketcher.Constraint("Tangent", 23, 2, 20, 1))
sketch13.addConstraint(Sketcher.Constraint("Coincident", 24, 2, 25, 1))
sketch13.addConstraint(Sketcher.Constraint("Coincident", 25, 2, 26, 1))
sketch13.addConstraint(Sketcher.Constraint("Tangent", 26, 2, 27, 1))
sketch13.addConstraint(Sketcher.Constraint("Tangent", 27, 2, 24, 1))
sketch13.addConstraint(Sketcher.Constraint("Coincident", 28, 2, 29, 1))
sketch13.addConstraint(Sketcher.Constraint("Coincident", 29, 2, 30, 1))
sketch13.addConstraint(Sketcher.Constraint("Tangent", 30, 2, 31, 1))
sketch13.addConstraint(Sketcher.Constraint("Tangent", 31, 2, 28, 1))
sketch13.addConstraint(Sketcher.Constraint("Vertical", 0))
sketch13.addConstraint(Sketcher.Constraint("Horizontal", 1))
sketch13.addConstraint(Sketcher.Constraint("Vertical", 2))
sketch13.addConstraint(Sketcher.Constraint("Vertical", 4))
sketch13.addConstraint(Sketcher.Constraint("Horizontal", 5))
sketch13.addConstraint(Sketcher.Constraint("Vertical", 6))
sketch13.addConstraint(Sketcher.Constraint("Vertical", 8))
sketch13.addConstraint(Sketcher.Constraint("Horizontal", 9))
sketch13.addConstraint(Sketcher.Constraint("Vertical", 10))
sketch13.addConstraint(Sketcher.Constraint("Vertical", 12))
sketch13.addConstraint(Sketcher.Constraint("Horizontal", 13))
sketch13.addConstraint(Sketcher.Constraint("Vertical", 14))
sketch13.addConstraint(Sketcher.Constraint("Vertical", 16))
sketch13.addConstraint(Sketcher.Constraint("Horizontal", 17))
sketch13.addConstraint(Sketcher.Constraint("Vertical", 18))
sketch13.addConstraint(Sketcher.Constraint("Vertical", 20))
sketch13.addConstraint(Sketcher.Constraint("Horizontal", 21))
sketch13.addConstraint(Sketcher.Constraint("Vertical", 22))
sketch13.addConstraint(Sketcher.Constraint("Vertical", 24))
sketch13.addConstraint(Sketcher.Constraint("Horizontal", 25))
sketch13.addConstraint(Sketcher.Constraint("Vertical", 26))
sketch13.addConstraint(Sketcher.Constraint("Vertical", 28))
sketch13.addConstraint(Sketcher.Constraint("Horizontal", 29))
sketch13.addConstraint(Sketcher.Constraint("Vertical", 30))
sketch13.addConstraint(Sketcher.Constraint("Equal", 3, 7))
sketch13.addConstraint(Sketcher.Constraint("Equal", 7, 11))
sketch13.addConstraint(Sketcher.Constraint("Equal", 11, 15))
sketch13.addConstraint(Sketcher.Constraint("Equal", 15, 19))
sketch13.addConstraint(Sketcher.Constraint("Equal", 19, 23))
sketch13.addConstraint(Sketcher.Constraint("Equal", 23, 27))
sketch13.addConstraint(Sketcher.Constraint("Equal", 27, 31))
sketch13.addConstraint(Sketcher.Constraint("Symmetric", 15, 3, 19, 3, -1))
sketch13.addConstraint(Sketcher.Constraint("Symmetric", 11, 3, 23, 3, -1))
sketch13.addConstraint(Sketcher.Constraint("Symmetric", 7, 3, 27, 3, -1))
sketch13.addConstraint(Sketcher.Constraint("Symmetric", 3, 3, 31, 3, -1))
sketch13.addConstraint(Sketcher.Constraint("Horizontal", 3, 3, 7, 3))
sketch13.addConstraint(Sketcher.Constraint("Horizontal", 7, 3, 11, 3))
sketch13.addConstraint(Sketcher.Constraint("Horizontal", 11, 3, 15, 3))
sketch13.addConstraint(Sketcher.Constraint("Horizontal", 1, 2, 4, 2))
sketch13.addConstraint(Sketcher.Constraint("Horizontal", 5, 2, 8, 2))
sketch13.addConstraint(Sketcher.Constraint("Horizontal", 9, 2, 12, 2))
sketch13.addConstraint(Sketcher.Constraint("Horizontal", 17, 2, 20, 2))
sketch13.addConstraint(Sketcher.Constraint("Horizontal", 21, 2, 24, 2))
sketch13.addConstraint(Sketcher.Constraint("Horizontal", 25, 2, 28, 2))
sketch13.addConstraint(Sketcher.Constraint("Equal", 14, 16))
sketch13.addConstraint(Sketcher.Constraint("DistanceY", 0, 1, 0, 2, Q("4 mm")))
sketch13.addConstraint(Sketcher.Constraint("Radius", 3, Q("3.25 mm")))
sketch13.addConstraint(Sketcher.Constraint("DistanceY", -1, 1, 3, 3, Q("65 mm")))
sketch13.addConstraint(Sketcher.Constraint("DistanceX", 7, 3, 3, 3, Q("45 mm")))
sketch13.addConstraint(Sketcher.Constraint("DistanceX", 11, 3, 7, 3, Q("50 mm")))
sketch13.addConstraint(Sketcher.Constraint("DistanceX", 15, 3, 11, 3, Q("50 mm")))
sketch13.addConstraint(Sketcher.Constraint("DistanceX", -1, 1, 3, 3, Q("67.5 mm")))
pocket11 = body.newObject("PartDesign::Pocket", "Pocket010")
pocket11.Profile = sketch13
pocket11.Length = 2

# Sketch on XZ plane
sketch14 = body.newObject("Sketcher::SketchObject", "Sketch013")
sketch14.AttachmentSupport = (doc.getObject("XZ_Plane"), [""])
sketch14.MapMode = "FlatFace"
sketch14.addGeometry(Part.Circle(V(-70, 64.6, 0), V(0, 0, 1), 1.2), False)
sketch14.addGeometry(Part.Circle(V(-2.5, 64.6, 0), V(0, 0, 1), 1.2), False)
sketch14.addGeometry(Part.Circle(V(60, 64.6, 0), V(0, 0, 1), 1.2), False)
sketch14.addGeometry(Part.Circle(V(-2.5, -64.6, 0), V(0, 0, 1), 1.2), False)
sketch14.addGeometry(Part.Circle(V(-70, -64.6, 0), V(0, 0, 1), 1.2), False)
sketch14.addGeometry(Part.Circle(V(60, -64.6, 0), V(0, 0, 1), 1.2), False)
sketch14.addConstraint(Sketcher.Constraint("Equal", 0, 1))
sketch14.addConstraint(Sketcher.Constraint("Equal", 1, 2))
sketch14.addConstraint(Sketcher.Constraint("Equal", 2, 3))
sketch14.addConstraint(Sketcher.Constraint("Equal", 3, 4))
sketch14.addConstraint(Sketcher.Constraint("Equal", 4, 5))
sketch14.addConstraint(Sketcher.Constraint("Symmetric", 1, 3, 3, 3, -1))
sketch14.addConstraint(Sketcher.Constraint("Symmetric", 0, 3, 4, 3, -1))
sketch14.addConstraint(Sketcher.Constraint("Symmetric", 2, 3, 5, 3, -1))
sketch14.addConstraint(Sketcher.Constraint("Horizontal", 0, 3, 1, 3))
sketch14.addConstraint(Sketcher.Constraint("Horizontal", 1, 3, 2, 3))
sketch14.addConstraint(Sketcher.Constraint("Diameter", 0, Q("2.5 mm")))
sketch14.addConstraint(Sketcher.Constraint("DistanceX", 0, 3, -1, 1, Q("70 mm")))
sketch14.addConstraint(Sketcher.Constraint("DistanceX", -1, 1, 2, 3, Q("60 mm")))
sketch14.addConstraint(Sketcher.Constraint("DistanceY", -1, 1, 0, 3, Q("64.6 mm")))
sketch14.addConstraint(Sketcher.Constraint("DistanceX", 1, 3, -1, 1, Q("2.5 mm")))
doc.recompute()
hole = body.newObject("PartDesign::Hole", "Hole")
hole.Profile = sketch14
hole.ThreadType = "None"
hole.Diameter = 2.5
hole.DepthType = "Dimension"
hole.Depth = 7.5
hole.DrillPoint = "Angled"
hole.DrillPointAngle = 118
hole.HoleCutType = "Countersink"
hole.HoleCutDiameter = 3.05
hole.HoleCutCountersinkAngle = 90

# Sketch on YZ plane
sketch15 = body.newObject("Sketcher::SketchObject", "Sketch014")
sketch15.AttachmentSupport = (doc.getObject("YZ_Plane"), [""])
sketch15.MapMode = "FlatFace"
sketch15.AttachmentOffset = App.Placement(V(0, 0, 80), App.Rotation())
sketch15.addGeometry(Part.Circle(V(4, 65, 0), V(0, 0, 1), 1.2), False)
sketch15.addGeometry(Part.Circle(V(4, -65, 0), V(0, 0, 1), 1.2), False)
sketch15.addConstraint(Sketcher.Constraint("Equal", 0, 1))
sketch15.addConstraint(Sketcher.Constraint("Symmetric", 0, 3, 1, 3, -1))
sketch15.addConstraint(Sketcher.Constraint("Diameter", 0, Q("2.5 mm")))
sketch15.addConstraint(Sketcher.Constraint("DistanceX", -1, 1, 0, 3, Q("4 mm")))
sketch15.addConstraint(Sketcher.Constraint("DistanceY", -1, 1, 0, 3, Q("65 mm")))
doc.recompute()
hole2 = body.newObject("PartDesign::Hole", "Hole001")
hole2.Profile = sketch15
hole2.ThreadType = "None"
hole2.Diameter = 2.5
hole2.DepthType = "Dimension"
hole2.Depth = 7.5
hole2.DrillPoint = "Angled"
hole2.DrillPointAngle = 118
hole2.HoleCutType = "Countersink"
hole2.HoleCutDiameter = 3.05
hole2.HoleCutCountersinkAngle = 90

# Sketch on XZ plane
sketch16 = body.newObject("Sketcher::SketchObject", "Sketch015")
sketch16.AttachmentSupport = (doc.getObject("XZ_Plane"), [""])
sketch16.MapMode = "FlatFace"
sketch16.AttachmentOffset = App.Placement(V(0, 0, -7), App.Rotation())
sketch16.addGeometry(Part.Circle(V(-76.1, -6.1, 0), V(0, 0, 1), 1.2), False)
sketch16.addGeometry(Part.Circle(V(-30.4, 4, 0), V(0, 0, 1), 1.2), False)
sketch16.addGeometry(Part.Circle(V(12.8, 4, 0), V(0, 0, 1), 1.2), False)
sketch16.addGeometry(Part.Circle(V(58.5, -6.2, 0), V(0, 0, 1), 1.2), False)
sketch16.addGeometry(Part.Circle(V(-76.1, 56.1, 0), V(0, 0, 1), 1.2), False)
sketch16.addGeometry(Part.Circle(V(-20.2, 56.1, 0), V(0, 0, 1), 1.2), False)
sketch16.addGeometry(Part.Circle(V(2.6, 56.1, 0), V(0, 0, 1), 1.2), False)
sketch16.addGeometry(Part.Circle(V(58.5, 56.1, 0), V(0, 0, 1), 1.2), False)
sketch16.addConstraint(Sketcher.Constraint("Equal", 0, 1))
sketch16.addConstraint(Sketcher.Constraint("Equal", 1, 2))
sketch16.addConstraint(Sketcher.Constraint("Equal", 2, 3))
sketch16.addConstraint(Sketcher.Constraint("Equal", 3, 4))
sketch16.addConstraint(Sketcher.Constraint("Equal", 4, 5))
sketch16.addConstraint(Sketcher.Constraint("Equal", 5, 6))
sketch16.addConstraint(Sketcher.Constraint("Equal", 6, 7))
sketch16.addConstraint(Sketcher.Constraint("Horizontal", 4, 3, 5, 3))
sketch16.addConstraint(Sketcher.Constraint("Horizontal", 5, 3, 6, 3))
sketch16.addConstraint(Sketcher.Constraint("Horizontal", 6, 3, 7, 3))
sketch16.addConstraint(Sketcher.Constraint("Vertical", 0, 3, 4, 3))
sketch16.addConstraint(Sketcher.Constraint("Diameter", 0, Q("2.5 mm")))
sketch16.addConstraint(Sketcher.Constraint("DistanceY", -1, 1, 2, 3, Q("4 mm")))
sketch16.addConstraint(Sketcher.Constraint("DistanceX", 0, 3, -1, 1, Q("76.1 mm")))
sketch16.addConstraint(Sketcher.Constraint("DistanceX", -1, 1, 2, 3, Q("12.8 mm")))
sketch16.addConstraint(Sketcher.Constraint("DistanceY", -1, 1, 4, 3, Q("56.1 mm")))
sketch16.addConstraint(Sketcher.Constraint("DistanceX", 1, 3, 3, 3, Q("88.9 mm")))
sketch16.addConstraint(Sketcher.Constraint("DistanceY", 0, 3, -1, 1, Q("6.13 mm")))
sketch16.addConstraint(Sketcher.Constraint("DistanceX", 1, 3, -1, 1, Q("30.38 mm")))
sketch16.addConstraint(Sketcher.Constraint("DistanceY", -1, 1, 1, 3, Q("4.03 mm")))
sketch16.addConstraint(Sketcher.Constraint("DistanceY", 3, 3, -1, 1, Q("6.16 mm")))
sketch16.addConstraint(Sketcher.Constraint("DistanceX", 5, 3, -1, 1, Q("20.22 mm")))
sketch16.addConstraint(Sketcher.Constraint("DistanceX", -1, 1, 6, 3, Q("2.64 mm")))
sketch16.addConstraint(Sketcher.Constraint("DistanceX", -1, 1, 7, 3, Q("58.49 mm")))
doc.recompute()
hole3 = body.newObject("PartDesign::Hole", "Hole002")
hole3.Profile = sketch16
hole3.ThreadType = "None"
hole3.Diameter = 2.5
hole3.DepthType = "Dimension"
hole3.Depth = 5
hole3.DrillPoint = "Angled"
hole3.DrillPointAngle = 118
hole3.HoleCutType = "Countersink"
hole3.HoleCutDiameter = 3.05
hole3.HoleCutCountersinkAngle = 90
hole3.Reversed = True

doc.recompute()
